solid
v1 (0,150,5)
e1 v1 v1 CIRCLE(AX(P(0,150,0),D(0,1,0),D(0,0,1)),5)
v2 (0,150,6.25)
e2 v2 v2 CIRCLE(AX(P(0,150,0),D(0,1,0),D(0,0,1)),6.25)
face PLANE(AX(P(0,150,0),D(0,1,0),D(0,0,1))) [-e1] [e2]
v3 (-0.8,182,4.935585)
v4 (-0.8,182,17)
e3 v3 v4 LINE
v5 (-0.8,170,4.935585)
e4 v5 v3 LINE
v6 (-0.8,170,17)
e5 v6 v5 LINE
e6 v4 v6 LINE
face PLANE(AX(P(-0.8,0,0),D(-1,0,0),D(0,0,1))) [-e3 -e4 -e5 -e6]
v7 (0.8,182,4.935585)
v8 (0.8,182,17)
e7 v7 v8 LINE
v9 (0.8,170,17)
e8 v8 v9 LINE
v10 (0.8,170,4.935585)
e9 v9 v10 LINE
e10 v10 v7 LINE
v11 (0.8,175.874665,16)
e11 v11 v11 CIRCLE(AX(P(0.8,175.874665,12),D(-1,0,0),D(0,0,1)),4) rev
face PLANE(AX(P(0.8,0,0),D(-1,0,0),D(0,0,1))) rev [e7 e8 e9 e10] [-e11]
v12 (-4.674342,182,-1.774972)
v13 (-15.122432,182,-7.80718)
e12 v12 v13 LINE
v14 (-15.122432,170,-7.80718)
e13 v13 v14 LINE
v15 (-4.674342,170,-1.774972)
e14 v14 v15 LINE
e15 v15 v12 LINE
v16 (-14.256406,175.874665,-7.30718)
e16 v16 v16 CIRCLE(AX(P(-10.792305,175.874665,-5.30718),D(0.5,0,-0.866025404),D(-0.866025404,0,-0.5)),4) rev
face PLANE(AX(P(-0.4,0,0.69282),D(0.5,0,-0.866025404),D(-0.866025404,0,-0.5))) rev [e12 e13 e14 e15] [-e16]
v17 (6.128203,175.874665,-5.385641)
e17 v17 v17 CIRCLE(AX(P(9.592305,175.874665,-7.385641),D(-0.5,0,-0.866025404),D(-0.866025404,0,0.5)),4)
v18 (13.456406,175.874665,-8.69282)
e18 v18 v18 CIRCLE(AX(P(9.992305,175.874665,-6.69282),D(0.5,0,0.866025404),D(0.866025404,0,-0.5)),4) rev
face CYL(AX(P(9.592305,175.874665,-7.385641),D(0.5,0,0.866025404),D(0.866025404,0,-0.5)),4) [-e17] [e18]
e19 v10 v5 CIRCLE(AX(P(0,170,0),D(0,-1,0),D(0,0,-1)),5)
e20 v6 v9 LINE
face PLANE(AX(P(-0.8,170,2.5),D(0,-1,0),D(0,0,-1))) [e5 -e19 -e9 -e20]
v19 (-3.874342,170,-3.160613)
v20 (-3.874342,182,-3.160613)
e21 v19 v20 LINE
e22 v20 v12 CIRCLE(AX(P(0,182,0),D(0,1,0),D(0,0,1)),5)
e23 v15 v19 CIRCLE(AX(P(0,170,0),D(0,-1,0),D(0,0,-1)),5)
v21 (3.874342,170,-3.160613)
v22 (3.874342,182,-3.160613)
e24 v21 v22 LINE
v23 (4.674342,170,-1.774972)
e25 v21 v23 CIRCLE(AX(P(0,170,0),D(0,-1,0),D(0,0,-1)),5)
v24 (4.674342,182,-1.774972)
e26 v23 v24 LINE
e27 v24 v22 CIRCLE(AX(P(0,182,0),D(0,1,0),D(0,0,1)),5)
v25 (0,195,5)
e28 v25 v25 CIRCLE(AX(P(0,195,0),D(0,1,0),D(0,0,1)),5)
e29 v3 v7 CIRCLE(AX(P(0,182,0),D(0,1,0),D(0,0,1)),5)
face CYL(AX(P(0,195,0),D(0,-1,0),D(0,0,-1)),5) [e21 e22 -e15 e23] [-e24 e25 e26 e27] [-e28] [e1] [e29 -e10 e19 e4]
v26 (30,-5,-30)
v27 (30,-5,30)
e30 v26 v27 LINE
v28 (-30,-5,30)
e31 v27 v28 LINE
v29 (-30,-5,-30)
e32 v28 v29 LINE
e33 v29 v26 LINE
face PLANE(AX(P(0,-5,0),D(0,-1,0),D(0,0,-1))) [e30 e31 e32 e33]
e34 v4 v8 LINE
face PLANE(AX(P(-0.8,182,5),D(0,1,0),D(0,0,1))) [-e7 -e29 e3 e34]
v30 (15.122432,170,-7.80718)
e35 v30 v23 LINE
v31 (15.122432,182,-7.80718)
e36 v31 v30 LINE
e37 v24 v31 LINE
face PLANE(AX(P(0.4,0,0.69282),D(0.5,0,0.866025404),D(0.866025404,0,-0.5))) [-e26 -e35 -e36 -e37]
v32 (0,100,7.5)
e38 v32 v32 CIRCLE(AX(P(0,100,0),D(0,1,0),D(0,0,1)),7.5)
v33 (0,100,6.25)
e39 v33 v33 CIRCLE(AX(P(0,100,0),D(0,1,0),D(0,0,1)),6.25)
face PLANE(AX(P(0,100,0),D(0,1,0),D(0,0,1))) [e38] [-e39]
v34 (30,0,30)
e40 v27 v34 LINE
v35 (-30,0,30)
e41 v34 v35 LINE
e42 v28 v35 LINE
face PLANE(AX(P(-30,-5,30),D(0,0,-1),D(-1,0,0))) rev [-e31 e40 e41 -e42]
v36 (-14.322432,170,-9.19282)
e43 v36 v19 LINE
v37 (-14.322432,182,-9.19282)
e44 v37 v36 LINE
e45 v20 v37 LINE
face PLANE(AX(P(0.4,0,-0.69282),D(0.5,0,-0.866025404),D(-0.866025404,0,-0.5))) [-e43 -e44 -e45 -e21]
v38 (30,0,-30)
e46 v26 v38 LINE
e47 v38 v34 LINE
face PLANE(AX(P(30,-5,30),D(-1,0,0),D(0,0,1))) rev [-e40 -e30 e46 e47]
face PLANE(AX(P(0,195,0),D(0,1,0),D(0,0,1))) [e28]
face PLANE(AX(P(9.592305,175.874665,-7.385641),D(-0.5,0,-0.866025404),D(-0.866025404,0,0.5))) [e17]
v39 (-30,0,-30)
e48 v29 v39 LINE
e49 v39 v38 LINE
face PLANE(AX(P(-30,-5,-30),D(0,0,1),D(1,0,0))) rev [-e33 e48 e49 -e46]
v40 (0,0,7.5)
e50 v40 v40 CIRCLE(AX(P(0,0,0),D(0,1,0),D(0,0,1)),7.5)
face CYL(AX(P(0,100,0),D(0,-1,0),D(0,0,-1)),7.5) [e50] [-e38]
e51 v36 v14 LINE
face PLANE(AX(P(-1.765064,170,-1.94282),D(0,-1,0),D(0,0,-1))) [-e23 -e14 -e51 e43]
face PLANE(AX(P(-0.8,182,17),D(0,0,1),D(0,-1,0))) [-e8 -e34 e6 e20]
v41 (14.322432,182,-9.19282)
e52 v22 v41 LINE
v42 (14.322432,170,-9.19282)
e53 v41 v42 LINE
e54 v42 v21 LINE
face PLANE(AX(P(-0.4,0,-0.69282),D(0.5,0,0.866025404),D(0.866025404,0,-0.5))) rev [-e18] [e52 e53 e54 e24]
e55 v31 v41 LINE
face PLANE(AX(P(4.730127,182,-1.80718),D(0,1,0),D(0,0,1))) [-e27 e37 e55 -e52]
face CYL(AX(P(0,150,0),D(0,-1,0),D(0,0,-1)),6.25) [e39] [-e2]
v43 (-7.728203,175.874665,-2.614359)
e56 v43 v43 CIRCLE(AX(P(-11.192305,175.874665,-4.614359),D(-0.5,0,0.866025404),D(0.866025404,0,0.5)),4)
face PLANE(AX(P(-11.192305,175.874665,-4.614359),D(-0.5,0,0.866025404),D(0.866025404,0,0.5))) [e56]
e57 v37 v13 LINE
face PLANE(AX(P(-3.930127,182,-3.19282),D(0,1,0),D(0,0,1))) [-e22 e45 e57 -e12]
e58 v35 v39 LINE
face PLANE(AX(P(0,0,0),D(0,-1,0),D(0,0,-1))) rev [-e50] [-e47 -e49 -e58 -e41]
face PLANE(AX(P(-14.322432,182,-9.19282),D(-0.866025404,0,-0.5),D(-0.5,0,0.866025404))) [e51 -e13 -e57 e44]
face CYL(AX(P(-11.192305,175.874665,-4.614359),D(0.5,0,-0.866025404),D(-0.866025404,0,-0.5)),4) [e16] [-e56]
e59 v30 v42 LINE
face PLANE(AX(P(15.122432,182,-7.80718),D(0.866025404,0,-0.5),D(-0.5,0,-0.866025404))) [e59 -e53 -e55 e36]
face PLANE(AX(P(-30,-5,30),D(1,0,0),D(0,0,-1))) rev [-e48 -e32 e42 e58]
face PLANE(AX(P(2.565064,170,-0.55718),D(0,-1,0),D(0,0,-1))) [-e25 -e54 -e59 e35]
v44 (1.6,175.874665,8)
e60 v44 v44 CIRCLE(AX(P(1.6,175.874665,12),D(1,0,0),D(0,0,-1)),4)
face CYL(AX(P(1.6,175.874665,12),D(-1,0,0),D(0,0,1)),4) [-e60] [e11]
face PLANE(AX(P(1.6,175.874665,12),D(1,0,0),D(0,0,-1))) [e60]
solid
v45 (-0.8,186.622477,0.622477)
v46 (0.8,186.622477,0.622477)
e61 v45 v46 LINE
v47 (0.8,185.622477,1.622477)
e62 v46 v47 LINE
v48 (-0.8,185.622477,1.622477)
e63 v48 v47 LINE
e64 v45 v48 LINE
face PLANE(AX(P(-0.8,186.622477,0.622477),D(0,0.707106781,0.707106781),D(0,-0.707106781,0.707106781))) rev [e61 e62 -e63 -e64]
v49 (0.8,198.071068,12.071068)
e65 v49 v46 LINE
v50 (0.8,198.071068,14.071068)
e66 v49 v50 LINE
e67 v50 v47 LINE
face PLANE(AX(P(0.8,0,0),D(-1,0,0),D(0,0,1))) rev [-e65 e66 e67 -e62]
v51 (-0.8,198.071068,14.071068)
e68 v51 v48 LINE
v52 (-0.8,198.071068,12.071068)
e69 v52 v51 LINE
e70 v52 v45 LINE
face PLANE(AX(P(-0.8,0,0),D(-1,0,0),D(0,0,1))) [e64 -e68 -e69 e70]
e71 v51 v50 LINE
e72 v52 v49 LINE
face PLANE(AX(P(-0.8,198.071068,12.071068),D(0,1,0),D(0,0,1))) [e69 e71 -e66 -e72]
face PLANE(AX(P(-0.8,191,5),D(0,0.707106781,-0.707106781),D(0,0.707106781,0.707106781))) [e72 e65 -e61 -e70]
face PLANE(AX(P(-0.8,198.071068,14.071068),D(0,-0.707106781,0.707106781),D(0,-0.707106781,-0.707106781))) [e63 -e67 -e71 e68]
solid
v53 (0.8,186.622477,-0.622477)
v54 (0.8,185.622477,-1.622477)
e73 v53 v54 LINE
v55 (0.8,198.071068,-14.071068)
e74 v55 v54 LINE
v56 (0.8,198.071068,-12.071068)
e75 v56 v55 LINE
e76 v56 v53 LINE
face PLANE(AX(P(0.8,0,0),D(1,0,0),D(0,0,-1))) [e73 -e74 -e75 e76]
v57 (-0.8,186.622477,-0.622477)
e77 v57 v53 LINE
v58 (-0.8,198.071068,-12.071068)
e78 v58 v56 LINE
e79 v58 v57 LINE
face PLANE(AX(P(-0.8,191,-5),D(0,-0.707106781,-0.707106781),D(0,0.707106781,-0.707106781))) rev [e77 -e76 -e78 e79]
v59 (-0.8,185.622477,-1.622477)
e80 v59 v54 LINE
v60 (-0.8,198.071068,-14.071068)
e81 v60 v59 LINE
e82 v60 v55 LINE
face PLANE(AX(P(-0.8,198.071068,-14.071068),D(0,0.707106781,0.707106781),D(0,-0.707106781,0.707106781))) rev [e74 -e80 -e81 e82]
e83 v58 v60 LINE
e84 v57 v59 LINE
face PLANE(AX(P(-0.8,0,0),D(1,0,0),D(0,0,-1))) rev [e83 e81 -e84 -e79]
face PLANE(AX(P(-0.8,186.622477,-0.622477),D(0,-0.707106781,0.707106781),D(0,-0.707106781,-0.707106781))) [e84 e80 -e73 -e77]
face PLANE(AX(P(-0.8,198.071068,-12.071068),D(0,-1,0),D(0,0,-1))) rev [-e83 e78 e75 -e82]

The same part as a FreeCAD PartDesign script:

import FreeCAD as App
import Part
import Sketcher
Q = App.Units.Quantity

doc = App.newDocument("Part")
body = doc.addObject("PartDesign::Body", "Body")

# Sketch on XZ plane
sketch1 = body.newObject("Sketcher::SketchObject", "Sketch")
sketch1.AttachmentSupport = (doc.getObject("XZ_Plane"), [""])
sketch1.MapMode = "FlatFace"
sketch1.addGeometry(Part.Circle(App.Vector(0, 0, 0), App.Vector(0, 0, 1), 8), False)
sketch1.addConstraint([
    Sketcher.Constraint("Coincident", 0, 3, -1, 1),
    Sketcher.Constraint("Diameter", 0, 15.0),
])
pad1 = body.newObject("PartDesign::Pad", "Pad")
pad1.Profile = sketch1
pad1.Length = 100
pad1.Reversed = True

# Sketch on XZ plane
sketch2 = body.newObject("Sketcher::SketchObject", "Sketch001")
sketch2.AttachmentSupport = (doc.getObject("XZ_Plane"), [""])
sketch2.MapMode = "FlatFace"
sketch2.AttachmentOffset = App.Placement(App.Vector(0, 0, -100), App.Rotation())
sketch2.addGeometry(Part.Circle(App.Vector(0, 0, 0), App.Vector(0, 0, 1), 6), False)
sketch2.addConstraint([
    Sketcher.Constraint("Coincident", 0, 3, -1, 1),
    Sketcher.Constraint("Diameter", 0, 12.5),
])
pad2 = body.newObject("PartDesign::Pad", "Pad001")
pad2.Profile = sketch2
pad2.Length = 50
pad2.Reversed = True

# Sketch on XZ plane
sketch3 = body.newObject("Sketcher::SketchObject", "Sketch002")
sketch3.AttachmentSupport = (doc.getObject("XZ_Plane"), [""])
sketch3.MapMode = "FlatFace"
sketch3.addGeometry([
    Part.LineSegment(App.Vector(-30, 30, 0), App.Vector(-30, -30, 0)),
    Part.LineSegment(App.Vector(-30, -30, 0), App.Vector(30, -30, 0)),
    Part.LineSegment(App.Vector(30, -30, 0), App.Vector(30, 30, 0)),
    Part.LineSegment(App.Vector(30, 30, 0), App.Vector(-30, 30, 0)),
], False)
sketch3.addConstraint([
    Sketcher.Constraint("Coincident", 0, 2, 1, 1),
    Sketcher.Constraint("Coincident", 1, 2, 2, 1),
    Sketcher.Constraint("Coincident", 2, 2, 3, 1),
    Sketcher.Constraint("Coincident", 3, 2, 0, 1),
    Sketcher.Constraint("Vertical", 0),
    Sketcher.Constraint("Horizontal", 1),
    Sketcher.Constraint("Vertical", 2),
    Sketcher.Constraint("Horizontal", 3),
    Sketcher.Constraint("Symmetric", 0, 2, 2, 2, -1, 1),
    Sketcher.Constraint("Equal", 3, 0),
    Sketcher.Constraint("DistanceX", 1, 1, 1, 2, 60.0),
])
pad3 = body.newObject("PartDesign::Pad", "Pad002")
pad3.Profile = sketch3
pad3.Length = 5

# Sketch on XZ plane
sketch4 = body.newObject("Sketcher::SketchObject", "Sketch003")
sketch4.AttachmentSupport = (doc.getObject("XZ_Plane"), [""])
sketch4.MapMode = "FlatFace"
sketch4.AttachmentOffset = App.Placement(App.Vector(0, 0, -150), App.Rotation())
sketch4.addGeometry(Part.Circle(App.Vector(0, 0, 0), App.Vector(0, 0, 1), 5), False)
sketch4.addConstraint([
    Sketcher.Constraint("Coincident", 0, 3, -1, 1),
    Sketcher.Constraint("Diameter", 0, 10.0),
])
pad4 = body.newObject("PartDesign::Pad", "Pad003")
pad4.Profile = sketch4
pad4.Length = 45
pad4.Reversed = True

# Sketch on YZ plane
sketch5 = body.newObject("Sketcher::SketchObject", "Sketch004")
sketch5.AttachmentSupport = (doc.getObject("YZ_Plane"), [""])
sketch5.MapMode = "FlatFace"
sketch5.addGeometry([
    Part.LineSegment(App.Vector(182, 17, 0), App.Vector(170, 17, 0)),
    Part.LineSegment(App.Vector(170, 17, 0), App.Vector(170, 2, 0)),
    Part.LineSegment(App.Vector(170, 2, 0), App.Vector(182, 2, 0)),
    Part.LineSegment(App.Vector(182, 2, 0), App.Vector(182, 17, 0)),
], False)
sketch5.addConstraint([
    Sketcher.Constraint("Coincident", 0, 2, 1, 1),
    Sketcher.Constraint("Coincident", 1, 2, 2, 1),
    Sketcher.Constraint("Coincident", 2, 2, 3, 1),
    Sketcher.Constraint("Coincident", 3, 2, 0, 1),
    Sketcher.Constraint("Horizontal", 0),
    Sketcher.Constraint("Vertical", 1),
    Sketcher.Constraint("Horizontal", 2),
    Sketcher.Constraint("Vertical", 3),
    Sketcher.Constraint("DistanceX", 0, 2, 0, 1, 12.0),
    Sketcher.Constraint("DistanceY", 1, 2, 1, 1, 14.5),
    Sketcher.Constraint("DistanceX", -1, 1, 0, 2, 170.0),
    Sketcher.Constraint("DistanceY", -1, 1, 0, 2, 17.0),
])
pad5 = body.newObject("PartDesign::Pad", "Pad004")
pad5.Profile = sketch5
pad5.Length = 1.6
pad5.Midplane = True

# Sketch on YZ plane
sketch6 = body.newObject("Sketcher::SketchObject", "Sketch005")
sketch6.AttachmentSupport = (doc.getObject("YZ_Plane"), [""])
sketch6.MapMode = "FlatFace"
sketch6.AttachmentOffset = App.Placement(App.Vector(0, 0, 0.8), App.Rotation())
sketch6.addGeometry(Part.Circle(App.Vector(175.9, 12, 0), App.Vector(0, 0, 1), 4), False)
sketch6.addConstraint([
    Sketcher.Constraint("Diameter", 0, 8.0),
    Sketcher.Constraint("DistanceY", -1, 1, 0, 3, 12.0),
    Sketcher.Constraint("DistanceX", -1, 1, 0, 3, 175.874665),
])
pad6 = body.newObject("PartDesign::Pad", "Pad005")
pad6.Profile = sketch6
pad6.Length = 0.8
doc.recompute()

polarpattern = body.newObject("PartDesign::PolarPattern", "PolarPattern")
polarpattern.Originals = [pad5, pad6]
polarpattern.Axis = (doc.getObject("Y_Axis"), [""])
polarpattern.Angle = 360
polarpattern.Occurrences = 3
body.Tip = polarpattern
body2 = doc.addObject("PartDesign::Body", "Body001")

# Sketch on YZ plane
sketch7 = body2.newObject("Sketcher::SketchObject", "Sketch006")
sketch7.AttachmentSupport = (doc.getObject("YZ_Plane001"), [""])
sketch7.MapMode = "FlatFace"
sketch7.addGeometry([
    Part.LineSegment(App.Vector(186.6, 0.6, 0), App.Vector(198.1, 12.1, 0)),
    Part.LineSegment(App.Vector(198.1, 12.1, 0), App.Vector(198.1, 14.1, 0)),
    Part.LineSegment(App.Vector(198.1, 14.1, 0), App.Vector(185.6, 1.6, 0)),
    Part.LineSegment(App.Vector(185.6, 1.6, 0), App.Vector(186.6, 0.6, 0)),
], False)
sketch7.addConstraint([
    Sketcher.Constraint("Coincident", 0, 2, 1, 1),
    Sketcher.Constraint("Coincident", 1, 2, 2, 1),
    Sketcher.Constraint("Coincident", 2, 2, 3, 1),
    Sketcher.Constraint("Coincident", 3, 2, 0, 1),
    Sketcher.Constraint("Vertical", 1),
    Sketcher.Constraint("Parallel", 0, 2),
    Sketcher.Constraint("Perpendicular", 2, 3),
    Sketcher.Constraint("DistanceY", 1, 1, 1, 2, 2.0),
    Sketcher.Constraint("Angle", 0, Q("45 deg")),
    Sketcher.Constraint("Distance", 0, 16.190752),
    Sketcher.Constraint("DistanceX", -1, 1, 0, 2, 198.071068),
    Sketcher.Constraint("DistanceY", -1, 1, 0, 2, 12.071068),
])
pad7 = body2.newObject("PartDesign::Pad", "Pad006")
pad7.Profile = sketch7
pad7.Type = "TwoLengths"
pad7.Length = 0.8
pad7.Length2 = 0.8
body3 = doc.addObject("PartDesign::Body", "Body002")

# Sketch on YZ plane
sketch8 = body3.newObject("Sketcher::SketchObject", "Sketch007")
sketch8.AttachmentSupport = (doc.getObject("YZ_Plane002"), [""])
sketch8.MapMode = "FlatFace"
sketch8.addGeometry([
    Part.LineSegment(App.Vector(198.1, -12.1, 0), App.Vector(186.6, -0.6, 0)),
    Part.LineSegment(App.Vector(186.6, -0.6, 0), App.Vector(185.6, -1.6, 0)),
    Part.LineSegment(App.Vector(185.6, -1.6, 0), App.Vector(198.1, -14.1, 0)),
    Part.LineSegment(App.Vector(198.1, -14.1, 0), App.Vector(198.1, -12.1, 0)),
], False)
sketch8.addConstraint([
    Sketcher.Constraint("Coincident", 0, 2, 1, 1),
    Sketcher.Constraint("Coincident", 1, 2, 2, 1),
    Sketcher.Constraint("Coincident", 2, 2, 3, 1),
    Sketcher.Constraint("Coincident", 3, 2, 0, 1),
    Sketcher.Constraint("Vertical", 3),
    Sketcher.Constraint("Perpendicular", 0, 1),
    Sketcher.Constraint("Perpendicular", 1, 2),
    Sketcher.Constraint("DistanceY", 3, 1, 3, 2, 2.0),
    Sketcher.Constraint("Angle", 0, Q("135 deg")),
    Sketcher.Constraint("Distance", 0, 16.190752),
    Sketcher.Constraint("DistanceX", -1, 1, 0, 2, 186.622477),
    Sketcher.Constraint("DistanceY", 0, 2, -1, 1, 0.622477),
])
pad8 = body3.newObject("PartDesign::Pad", "Pad007")
pad8.Profile = sketch8
pad8.Type = "TwoLengths"
pad8.Length = 0.8
pad8.Length2 = 0.8

doc.recompute()
